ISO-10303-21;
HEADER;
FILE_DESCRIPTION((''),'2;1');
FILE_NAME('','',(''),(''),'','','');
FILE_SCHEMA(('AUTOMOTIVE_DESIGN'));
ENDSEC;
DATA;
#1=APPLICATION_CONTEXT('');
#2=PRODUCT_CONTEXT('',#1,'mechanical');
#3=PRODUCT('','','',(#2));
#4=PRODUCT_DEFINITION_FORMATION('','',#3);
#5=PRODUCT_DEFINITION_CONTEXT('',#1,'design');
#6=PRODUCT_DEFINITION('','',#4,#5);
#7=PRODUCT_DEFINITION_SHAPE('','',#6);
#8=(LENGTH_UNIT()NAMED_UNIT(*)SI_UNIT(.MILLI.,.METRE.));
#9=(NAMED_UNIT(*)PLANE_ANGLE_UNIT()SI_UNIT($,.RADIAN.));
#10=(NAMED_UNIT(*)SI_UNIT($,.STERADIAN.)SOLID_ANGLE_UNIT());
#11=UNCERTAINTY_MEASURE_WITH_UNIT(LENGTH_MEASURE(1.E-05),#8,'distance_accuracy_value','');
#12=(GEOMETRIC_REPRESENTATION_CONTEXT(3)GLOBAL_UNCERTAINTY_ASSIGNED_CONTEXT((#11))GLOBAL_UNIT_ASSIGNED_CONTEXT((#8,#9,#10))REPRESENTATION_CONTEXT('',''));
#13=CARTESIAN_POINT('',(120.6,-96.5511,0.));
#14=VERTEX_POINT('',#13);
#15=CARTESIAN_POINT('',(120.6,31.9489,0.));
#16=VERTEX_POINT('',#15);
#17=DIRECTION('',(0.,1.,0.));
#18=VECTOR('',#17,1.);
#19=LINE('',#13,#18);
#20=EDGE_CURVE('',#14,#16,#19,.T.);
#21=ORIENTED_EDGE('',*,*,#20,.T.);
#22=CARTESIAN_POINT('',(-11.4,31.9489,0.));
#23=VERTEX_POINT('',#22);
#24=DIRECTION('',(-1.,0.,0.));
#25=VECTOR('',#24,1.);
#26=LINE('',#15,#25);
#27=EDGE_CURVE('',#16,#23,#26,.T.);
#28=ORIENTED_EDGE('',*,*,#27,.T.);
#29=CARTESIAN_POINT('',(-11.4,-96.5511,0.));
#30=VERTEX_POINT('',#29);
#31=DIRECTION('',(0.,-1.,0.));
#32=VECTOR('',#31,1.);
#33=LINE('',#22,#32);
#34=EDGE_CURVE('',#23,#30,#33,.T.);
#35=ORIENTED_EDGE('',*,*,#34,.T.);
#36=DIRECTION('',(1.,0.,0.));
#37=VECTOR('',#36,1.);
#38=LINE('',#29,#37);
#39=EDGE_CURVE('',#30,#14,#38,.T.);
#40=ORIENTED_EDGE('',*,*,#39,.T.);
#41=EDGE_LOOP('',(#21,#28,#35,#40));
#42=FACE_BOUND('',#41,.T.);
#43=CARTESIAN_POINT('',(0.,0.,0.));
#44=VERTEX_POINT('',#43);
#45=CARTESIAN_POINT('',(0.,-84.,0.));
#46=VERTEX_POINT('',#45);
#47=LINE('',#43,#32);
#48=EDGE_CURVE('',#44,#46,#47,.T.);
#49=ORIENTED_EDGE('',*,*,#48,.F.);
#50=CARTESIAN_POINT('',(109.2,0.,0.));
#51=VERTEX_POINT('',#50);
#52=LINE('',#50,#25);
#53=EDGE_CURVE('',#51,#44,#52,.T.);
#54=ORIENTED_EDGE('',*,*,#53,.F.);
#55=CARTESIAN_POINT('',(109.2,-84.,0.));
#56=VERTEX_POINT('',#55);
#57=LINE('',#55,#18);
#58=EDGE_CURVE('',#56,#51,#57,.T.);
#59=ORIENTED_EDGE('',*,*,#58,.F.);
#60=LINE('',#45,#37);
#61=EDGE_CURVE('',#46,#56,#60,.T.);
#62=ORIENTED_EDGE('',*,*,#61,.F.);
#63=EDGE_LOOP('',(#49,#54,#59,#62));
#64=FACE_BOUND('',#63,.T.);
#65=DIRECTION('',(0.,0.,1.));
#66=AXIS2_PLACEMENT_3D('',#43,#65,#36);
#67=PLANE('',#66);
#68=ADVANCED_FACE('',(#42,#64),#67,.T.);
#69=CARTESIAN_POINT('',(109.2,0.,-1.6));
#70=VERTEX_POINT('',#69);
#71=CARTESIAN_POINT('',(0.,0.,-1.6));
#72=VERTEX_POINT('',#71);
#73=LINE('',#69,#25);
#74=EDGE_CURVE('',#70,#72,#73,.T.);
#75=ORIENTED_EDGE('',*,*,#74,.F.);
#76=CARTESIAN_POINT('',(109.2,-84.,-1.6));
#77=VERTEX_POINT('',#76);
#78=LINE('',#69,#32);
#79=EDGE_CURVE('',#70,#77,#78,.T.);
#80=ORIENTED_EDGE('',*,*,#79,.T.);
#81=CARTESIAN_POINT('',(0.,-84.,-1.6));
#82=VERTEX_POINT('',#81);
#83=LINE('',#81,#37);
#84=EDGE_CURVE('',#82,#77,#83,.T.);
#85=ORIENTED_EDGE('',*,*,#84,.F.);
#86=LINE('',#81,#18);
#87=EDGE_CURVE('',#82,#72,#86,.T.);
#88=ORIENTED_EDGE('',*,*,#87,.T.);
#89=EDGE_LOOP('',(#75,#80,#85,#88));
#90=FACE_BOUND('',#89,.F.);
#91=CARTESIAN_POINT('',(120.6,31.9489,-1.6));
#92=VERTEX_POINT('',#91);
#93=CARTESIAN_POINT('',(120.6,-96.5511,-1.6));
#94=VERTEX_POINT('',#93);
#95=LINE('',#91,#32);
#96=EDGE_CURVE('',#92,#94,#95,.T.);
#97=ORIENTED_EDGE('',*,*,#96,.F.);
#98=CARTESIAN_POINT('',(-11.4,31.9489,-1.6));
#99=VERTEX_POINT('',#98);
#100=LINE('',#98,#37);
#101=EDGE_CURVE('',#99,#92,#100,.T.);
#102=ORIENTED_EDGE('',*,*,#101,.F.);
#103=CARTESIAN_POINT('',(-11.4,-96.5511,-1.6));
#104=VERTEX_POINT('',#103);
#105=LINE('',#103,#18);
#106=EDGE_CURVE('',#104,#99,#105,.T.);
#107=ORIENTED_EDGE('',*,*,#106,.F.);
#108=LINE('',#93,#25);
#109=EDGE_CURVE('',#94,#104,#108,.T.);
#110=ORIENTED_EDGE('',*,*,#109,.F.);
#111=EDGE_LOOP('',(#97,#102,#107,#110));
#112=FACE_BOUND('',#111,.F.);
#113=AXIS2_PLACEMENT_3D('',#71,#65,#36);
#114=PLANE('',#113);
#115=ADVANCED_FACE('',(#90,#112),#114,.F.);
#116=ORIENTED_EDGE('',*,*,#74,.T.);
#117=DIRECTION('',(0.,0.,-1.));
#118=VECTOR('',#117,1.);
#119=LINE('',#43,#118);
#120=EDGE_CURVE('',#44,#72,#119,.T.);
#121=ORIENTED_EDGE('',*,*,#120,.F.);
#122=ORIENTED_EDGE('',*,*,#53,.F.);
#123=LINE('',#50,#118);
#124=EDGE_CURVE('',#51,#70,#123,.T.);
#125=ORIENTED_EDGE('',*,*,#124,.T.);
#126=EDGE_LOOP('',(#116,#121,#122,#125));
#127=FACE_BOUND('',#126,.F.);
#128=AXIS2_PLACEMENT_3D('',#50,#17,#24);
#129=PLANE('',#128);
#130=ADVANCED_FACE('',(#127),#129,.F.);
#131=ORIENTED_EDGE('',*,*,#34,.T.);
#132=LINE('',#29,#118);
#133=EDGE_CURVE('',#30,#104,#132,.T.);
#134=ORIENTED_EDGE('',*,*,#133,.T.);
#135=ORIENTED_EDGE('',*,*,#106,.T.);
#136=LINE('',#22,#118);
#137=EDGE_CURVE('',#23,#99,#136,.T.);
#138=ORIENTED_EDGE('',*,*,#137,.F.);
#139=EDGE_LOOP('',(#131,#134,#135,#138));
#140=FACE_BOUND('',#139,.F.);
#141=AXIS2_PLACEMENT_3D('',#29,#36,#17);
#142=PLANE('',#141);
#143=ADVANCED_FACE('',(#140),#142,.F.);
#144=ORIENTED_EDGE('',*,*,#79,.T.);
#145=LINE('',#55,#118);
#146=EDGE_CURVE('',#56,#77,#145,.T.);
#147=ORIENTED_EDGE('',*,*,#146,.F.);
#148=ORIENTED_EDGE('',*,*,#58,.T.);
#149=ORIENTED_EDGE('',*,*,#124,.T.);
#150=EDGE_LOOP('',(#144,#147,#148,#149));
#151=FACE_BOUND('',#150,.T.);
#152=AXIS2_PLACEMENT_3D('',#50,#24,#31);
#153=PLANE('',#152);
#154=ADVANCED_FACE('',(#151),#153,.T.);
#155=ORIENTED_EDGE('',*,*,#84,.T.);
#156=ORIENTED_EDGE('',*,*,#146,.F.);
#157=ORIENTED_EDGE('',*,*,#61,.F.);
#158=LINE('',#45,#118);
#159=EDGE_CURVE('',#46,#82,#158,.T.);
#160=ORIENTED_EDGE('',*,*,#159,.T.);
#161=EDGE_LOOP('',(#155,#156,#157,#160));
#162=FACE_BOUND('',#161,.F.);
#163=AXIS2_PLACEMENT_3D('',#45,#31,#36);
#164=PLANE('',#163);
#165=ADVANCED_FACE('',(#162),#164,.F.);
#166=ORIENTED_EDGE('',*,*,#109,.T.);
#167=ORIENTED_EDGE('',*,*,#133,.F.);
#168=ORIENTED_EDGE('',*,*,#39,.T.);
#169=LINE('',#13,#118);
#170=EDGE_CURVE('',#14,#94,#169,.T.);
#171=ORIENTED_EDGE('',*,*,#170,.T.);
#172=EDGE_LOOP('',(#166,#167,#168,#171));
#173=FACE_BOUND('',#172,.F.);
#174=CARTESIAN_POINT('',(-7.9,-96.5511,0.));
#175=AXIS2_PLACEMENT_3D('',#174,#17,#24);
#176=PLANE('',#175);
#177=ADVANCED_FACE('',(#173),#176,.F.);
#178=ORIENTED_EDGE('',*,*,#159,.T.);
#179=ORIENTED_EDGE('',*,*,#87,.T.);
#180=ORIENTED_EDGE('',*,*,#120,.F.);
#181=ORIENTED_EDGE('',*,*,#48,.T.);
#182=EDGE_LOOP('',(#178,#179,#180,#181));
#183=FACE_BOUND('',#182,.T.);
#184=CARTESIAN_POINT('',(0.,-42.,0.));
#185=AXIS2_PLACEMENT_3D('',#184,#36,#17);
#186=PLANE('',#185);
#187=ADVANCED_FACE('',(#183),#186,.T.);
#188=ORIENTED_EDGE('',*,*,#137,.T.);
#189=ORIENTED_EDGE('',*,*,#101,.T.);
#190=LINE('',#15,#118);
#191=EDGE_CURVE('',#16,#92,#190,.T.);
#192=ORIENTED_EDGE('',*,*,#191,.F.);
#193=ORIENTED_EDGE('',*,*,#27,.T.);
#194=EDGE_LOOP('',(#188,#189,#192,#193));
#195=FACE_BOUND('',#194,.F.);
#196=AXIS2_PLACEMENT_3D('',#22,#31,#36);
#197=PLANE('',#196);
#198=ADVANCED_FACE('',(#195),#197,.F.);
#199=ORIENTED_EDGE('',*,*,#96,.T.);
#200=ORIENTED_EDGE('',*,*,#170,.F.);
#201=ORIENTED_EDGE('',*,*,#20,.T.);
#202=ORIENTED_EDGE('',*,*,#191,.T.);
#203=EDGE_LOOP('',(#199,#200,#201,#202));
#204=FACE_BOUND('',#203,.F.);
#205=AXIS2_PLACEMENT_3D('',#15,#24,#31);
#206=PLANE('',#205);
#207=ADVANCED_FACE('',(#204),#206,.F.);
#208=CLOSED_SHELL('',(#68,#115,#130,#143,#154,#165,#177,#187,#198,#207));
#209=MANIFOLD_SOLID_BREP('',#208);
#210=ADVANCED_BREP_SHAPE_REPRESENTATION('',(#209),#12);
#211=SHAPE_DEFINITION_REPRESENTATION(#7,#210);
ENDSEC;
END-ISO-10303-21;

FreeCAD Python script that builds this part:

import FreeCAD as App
import Part
import Sketcher


def add_polygon(sketch, points):
    """Adds a closed chain of lines whose ends are joined by coincident constraints."""
    first, n = sketch.GeometryCount, len(points)
    for a, b in zip(points, points[1:] + points[:1]):
        sketch.addGeometry(Part.LineSegment(App.Vector(*a, 0), App.Vector(*b, 0)), False)
    for i in range(n):
        sketch.addConstraint(Sketcher.Constraint("Coincident", first + i, 2, first + (i + 1) % n, 1))

doc = App.newDocument("Part")
params = doc.addObject("Spreadsheet::Sheet", "Params")
for row, (alias, value) in enumerate([
    ("sketch1_width", "132 mm"),
    ("sketch1_height", "128.5 mm"),
    ("sketch1_height2", "84 mm"),
    ("sketch1_width2", "109.2 mm"),
    ("pad1_length", "1.6 mm"),
], start=1):
    params.set(f"A{row}", alias)
    params.set(f"B{row}", "=" + value)
    params.setAlias(f"B{row}", alias)

body = doc.addObject("PartDesign::Body", "Body")

sketch1 = body.newObject("Sketcher::SketchObject", "Sketch")
sketch1.AttachmentSupport = (doc.getObject("XY_Plane"), [""])
sketch1.MapMode = "FlatFace"
add_polygon(sketch1, [(-11, -97), (121, -97), (121, 32), (-11, 32)])
add_polygon(sketch1, [(0, 0), (109, 0), (109, -84), (0, -84)])
sketch1.addConstraint(Sketcher.Constraint("Horizontal", 0))
sketch1.addConstraint(Sketcher.Constraint("Vertical", 1))
sketch1.addConstraint(Sketcher.Constraint("Horizontal", 2))
sketch1.addConstraint(Sketcher.Constraint("Vertical", 3))
sketch1.addConstraint(Sketcher.Constraint("Horizontal", 4))
sketch1.addConstraint(Sketcher.Constraint("Vertical", 5))
sketch1.addConstraint(Sketcher.Constraint("Horizontal", 6))
sketch1.addConstraint(Sketcher.Constraint("Vertical", 7))
sketch1.addConstraint(Sketcher.Constraint("Coincident", 7, 2, -1, 1))
sketch1.addConstraint(Sketcher.Constraint("DistanceX", 0, 1, 0, 2, 132.0))
sketch1.addConstraint(Sketcher.Constraint("DistanceY", 1, 1, 1, 2, 128.5))
sketch1.addConstraint(Sketcher.Constraint("DistanceY", 5, 2, 5, 1, 84.0))
sketch1.addConstraint(Sketcher.Constraint("DistanceX", 4, 1, 4, 2, 109.2))
sketch1.addConstraint(Sketcher.Constraint("DistanceX", -1, 1, 0, 2, 120.6))
sketch1.addConstraint(Sketcher.Constraint("DistanceY", 0, 2, -1, 1, 96.551))
sketch1.setExpression("Constraints[17]", "Params.sketch1_width")
sketch1.setExpression("Constraints[18]", "Params.sketch1_height")
sketch1.setExpression("Constraints[19]", "Params.sketch1_height2")
sketch1.setExpression("Constraints[20]", "Params.sketch1_width2")
pad1 = body.newObject("PartDesign::Pad", "Pad")
pad1.Profile = sketch1
pad1.setExpression("Length", "Params.pad1_length")
pad1.Reversed = True

doc.recompute()
